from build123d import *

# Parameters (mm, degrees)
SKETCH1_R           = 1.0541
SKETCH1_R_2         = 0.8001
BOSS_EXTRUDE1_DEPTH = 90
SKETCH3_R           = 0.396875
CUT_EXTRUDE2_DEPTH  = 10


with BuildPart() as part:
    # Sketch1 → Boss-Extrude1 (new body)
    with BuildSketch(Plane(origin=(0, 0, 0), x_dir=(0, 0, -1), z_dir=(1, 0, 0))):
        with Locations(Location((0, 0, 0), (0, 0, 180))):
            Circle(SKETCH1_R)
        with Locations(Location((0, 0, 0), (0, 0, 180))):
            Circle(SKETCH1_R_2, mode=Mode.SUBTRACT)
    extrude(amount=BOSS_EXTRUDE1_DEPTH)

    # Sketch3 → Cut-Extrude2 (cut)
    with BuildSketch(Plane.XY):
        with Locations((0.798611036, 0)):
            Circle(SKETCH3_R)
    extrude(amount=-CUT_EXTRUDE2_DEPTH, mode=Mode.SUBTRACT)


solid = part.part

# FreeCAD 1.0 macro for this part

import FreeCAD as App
import Part
import Sketcher

V = App.Vector
Q = App.Units.Quantity

doc = App.newDocument("Part")
body = doc.addObject("PartDesign::Body", "Body")

sketch1 = body.newObject("Sketcher::SketchObject", "Sketch")
sketch1.AttachmentSupport = (doc.getObject("YZ_Plane"), [""])
sketch1.MapMode = "FlatFace"
sketch1.addGeometry([
    Part.Circle(V(0, 0, 0), V(0, 0, 1), 1.0541),
    Part.Circle(V(0, 0, 0), V(0, 0, 1), 0.8001),
], False)
sketch1.addConstraint([
    Sketcher.Constraint("Coincident", 0, 3, -1, 1),
    Sketcher.Constraint("Coincident", 1, 3, -1, 1),
    Sketcher.Constraint("Diameter", 0, Q("0.083 in")),
    Sketcher.Constraint("Diameter", 1, Q("0.063 in")),
])
pad1 = body.newObject("PartDesign::Pad", "Pad")
pad1.Profile = sketch1
pad1.Length = 90

sketch2 = body.newObject("Sketcher::SketchObject", "Sketch001")
sketch2.AttachmentSupport = (doc.getObject("XY_Plane"), [""])
sketch2.MapMode = "FlatFace"
sketch2.addGeometry(Part.Circle(V(0.798611, 0, 0), V(0, 0, 1), 0.396875), False)
sketch2.addConstraint([
    Sketcher.Constraint("PointOnObject", 0, 3, -1),
    Sketcher.Constraint("Diameter", 0, Q("0.03125 in")),
    Sketcher.Constraint("DistanceX", -1, 1, 0, 3, 0.798611),
])
pocket1 = body.newObject("PartDesign::Pocket", "Pocket")
pocket1.Profile = sketch2
pocket1.Length = 10

doc.recompute()
